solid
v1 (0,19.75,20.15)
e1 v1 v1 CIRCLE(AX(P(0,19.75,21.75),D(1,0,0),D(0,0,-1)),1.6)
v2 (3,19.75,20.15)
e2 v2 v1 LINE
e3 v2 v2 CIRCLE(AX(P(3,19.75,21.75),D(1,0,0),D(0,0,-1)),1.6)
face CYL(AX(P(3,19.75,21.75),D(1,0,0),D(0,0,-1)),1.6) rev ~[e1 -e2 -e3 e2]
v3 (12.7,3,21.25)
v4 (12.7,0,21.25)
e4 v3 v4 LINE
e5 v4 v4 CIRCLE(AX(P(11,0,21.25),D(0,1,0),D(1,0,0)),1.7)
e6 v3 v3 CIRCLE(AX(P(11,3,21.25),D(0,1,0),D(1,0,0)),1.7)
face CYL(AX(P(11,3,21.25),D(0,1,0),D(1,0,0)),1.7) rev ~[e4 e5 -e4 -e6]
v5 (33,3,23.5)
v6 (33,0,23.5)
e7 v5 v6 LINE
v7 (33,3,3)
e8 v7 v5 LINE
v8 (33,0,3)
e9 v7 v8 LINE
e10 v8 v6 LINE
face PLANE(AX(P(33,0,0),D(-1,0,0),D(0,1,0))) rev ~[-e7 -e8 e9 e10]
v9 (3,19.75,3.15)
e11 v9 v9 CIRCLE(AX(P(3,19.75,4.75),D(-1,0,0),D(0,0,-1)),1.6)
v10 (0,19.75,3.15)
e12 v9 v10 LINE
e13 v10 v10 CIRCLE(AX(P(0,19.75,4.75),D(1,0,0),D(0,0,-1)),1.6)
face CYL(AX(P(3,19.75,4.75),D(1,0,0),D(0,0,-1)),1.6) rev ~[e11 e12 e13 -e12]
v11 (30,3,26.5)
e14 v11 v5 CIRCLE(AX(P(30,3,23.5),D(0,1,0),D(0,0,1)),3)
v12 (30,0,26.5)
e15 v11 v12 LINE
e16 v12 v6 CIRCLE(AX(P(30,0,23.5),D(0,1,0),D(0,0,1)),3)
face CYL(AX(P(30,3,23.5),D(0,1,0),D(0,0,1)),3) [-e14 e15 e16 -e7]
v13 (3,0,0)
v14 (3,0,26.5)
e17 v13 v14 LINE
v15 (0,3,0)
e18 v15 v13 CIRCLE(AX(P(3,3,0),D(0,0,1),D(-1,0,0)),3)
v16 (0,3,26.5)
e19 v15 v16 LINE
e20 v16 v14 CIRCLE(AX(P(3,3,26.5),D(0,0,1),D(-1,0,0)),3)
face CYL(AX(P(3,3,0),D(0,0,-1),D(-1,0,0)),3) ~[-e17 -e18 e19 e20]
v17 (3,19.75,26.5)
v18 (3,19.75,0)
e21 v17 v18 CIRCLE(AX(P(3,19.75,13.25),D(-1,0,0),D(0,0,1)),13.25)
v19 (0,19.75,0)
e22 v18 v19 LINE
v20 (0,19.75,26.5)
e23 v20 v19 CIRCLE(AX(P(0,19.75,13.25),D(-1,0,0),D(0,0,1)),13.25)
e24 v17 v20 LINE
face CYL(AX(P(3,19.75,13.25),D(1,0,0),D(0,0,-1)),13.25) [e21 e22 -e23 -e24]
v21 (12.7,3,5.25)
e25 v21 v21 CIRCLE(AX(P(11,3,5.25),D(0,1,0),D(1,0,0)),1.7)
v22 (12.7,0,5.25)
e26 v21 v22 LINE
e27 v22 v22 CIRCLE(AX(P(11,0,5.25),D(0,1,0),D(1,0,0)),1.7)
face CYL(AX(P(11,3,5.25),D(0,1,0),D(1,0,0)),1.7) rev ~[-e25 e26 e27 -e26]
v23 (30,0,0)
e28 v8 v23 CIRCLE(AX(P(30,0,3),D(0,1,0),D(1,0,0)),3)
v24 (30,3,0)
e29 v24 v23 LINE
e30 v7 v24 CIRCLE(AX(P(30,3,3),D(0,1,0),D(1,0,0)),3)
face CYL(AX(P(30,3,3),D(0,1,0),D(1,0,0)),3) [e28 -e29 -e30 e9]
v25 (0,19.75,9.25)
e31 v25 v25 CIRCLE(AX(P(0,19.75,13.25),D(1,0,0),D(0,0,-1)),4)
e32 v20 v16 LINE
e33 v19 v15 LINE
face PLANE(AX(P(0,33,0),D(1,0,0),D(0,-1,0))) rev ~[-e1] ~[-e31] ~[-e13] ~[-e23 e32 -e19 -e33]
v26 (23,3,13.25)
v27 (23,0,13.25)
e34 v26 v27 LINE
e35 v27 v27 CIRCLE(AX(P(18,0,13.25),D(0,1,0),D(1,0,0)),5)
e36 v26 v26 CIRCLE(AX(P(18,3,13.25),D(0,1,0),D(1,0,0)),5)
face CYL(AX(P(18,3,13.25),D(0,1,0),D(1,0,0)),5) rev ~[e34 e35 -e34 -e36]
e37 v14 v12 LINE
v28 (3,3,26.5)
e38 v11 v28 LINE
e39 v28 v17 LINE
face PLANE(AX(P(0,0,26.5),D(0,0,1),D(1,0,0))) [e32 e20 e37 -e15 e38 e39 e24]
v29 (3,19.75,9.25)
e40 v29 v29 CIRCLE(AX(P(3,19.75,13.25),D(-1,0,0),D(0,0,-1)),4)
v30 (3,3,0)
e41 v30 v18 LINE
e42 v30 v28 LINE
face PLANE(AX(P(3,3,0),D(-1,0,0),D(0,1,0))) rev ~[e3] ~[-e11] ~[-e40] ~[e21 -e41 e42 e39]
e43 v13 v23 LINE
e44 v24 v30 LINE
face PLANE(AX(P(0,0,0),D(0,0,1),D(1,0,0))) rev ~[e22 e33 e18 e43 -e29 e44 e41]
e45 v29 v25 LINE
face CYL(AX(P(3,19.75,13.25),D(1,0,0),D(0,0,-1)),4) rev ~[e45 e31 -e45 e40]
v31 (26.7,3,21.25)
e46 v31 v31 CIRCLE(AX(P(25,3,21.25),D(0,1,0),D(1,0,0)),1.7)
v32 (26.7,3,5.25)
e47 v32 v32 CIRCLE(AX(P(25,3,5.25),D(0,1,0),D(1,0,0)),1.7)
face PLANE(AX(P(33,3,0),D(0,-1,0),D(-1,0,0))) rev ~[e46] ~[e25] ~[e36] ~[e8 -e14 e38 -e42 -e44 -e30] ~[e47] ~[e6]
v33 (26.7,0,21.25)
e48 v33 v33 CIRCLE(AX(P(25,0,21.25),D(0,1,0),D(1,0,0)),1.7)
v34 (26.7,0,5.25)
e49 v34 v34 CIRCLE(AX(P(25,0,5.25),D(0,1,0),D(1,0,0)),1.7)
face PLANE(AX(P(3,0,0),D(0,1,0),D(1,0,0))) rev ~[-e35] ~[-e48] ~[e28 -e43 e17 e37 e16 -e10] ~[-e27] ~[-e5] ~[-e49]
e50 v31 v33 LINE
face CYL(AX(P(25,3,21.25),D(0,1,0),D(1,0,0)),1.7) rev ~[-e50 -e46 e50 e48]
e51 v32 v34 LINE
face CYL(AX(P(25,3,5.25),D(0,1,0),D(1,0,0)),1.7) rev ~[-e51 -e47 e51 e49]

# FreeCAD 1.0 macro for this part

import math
import FreeCAD as App
import Part
import Sketcher
from FreeCAD import Vector
Q = App.Units.Quantity

doc = App.newDocument("Part")
body = doc.addObject("PartDesign::Body", "Body")

# Sketch on XY plane
sketch1 = body.newObject("Sketcher::SketchObject", "Sketch")
sketch1.AttachmentSupport = (doc.getObject("XY_Plane"), [""])
sketch1.MapMode = "FlatFace"
sketch1.addGeometry(Part.ArcOfCircle(Part.Circle(Vector(3, 3, 0), Vector(0, 0, 1), 3), math.radians(180), math.radians(270)), False)
sketch1.addGeometry(Part.LineSegment(Vector(3, 0, 0), Vector(33, 0, 0)), False)
sketch1.addGeometry(Part.LineSegment(Vector(33, 0, 0), Vector(33, 3, 0)), False)
sketch1.addGeometry(Part.LineSegment(Vector(33, 3, 0), Vector(3, 3, 0)), False)
sketch1.addGeometry(Part.LineSegment(Vector(3, 3, 0), Vector(3, 33, 0)), False)
sketch1.addGeometry(Part.LineSegment(Vector(3, 33, 0), Vector(0, 33, 0)), False)
sketch1.addGeometry(Part.LineSegment(Vector(0, 33, 0), Vector(0, 3, 0)), False)
sketch1.addConstraint(Sketcher.Constraint("Tangent", 0, 2, 1, 1))
sketch1.addConstraint(Sketcher.Constraint("Coincident", 1, 2, 2, 1))
sketch1.addConstraint(Sketcher.Constraint("Coincident", 2, 2, 3, 1))
sketch1.addConstraint(Sketcher.Constraint("Coincident", 3, 2, 4, 1))
sketch1.addConstraint(Sketcher.Constraint("Coincident", 4, 2, 5, 1))
sketch1.addConstraint(Sketcher.Constraint("Coincident", 5, 2, 6, 1))
sketch1.addConstraint(Sketcher.Constraint("Tangent", 6, 2, 0, 1))
sketch1.addConstraint(Sketcher.Constraint("Horizontal", 1))
sketch1.addConstraint(Sketcher.Constraint("Vertical", 2))
sketch1.addConstraint(Sketcher.Constraint("Horizontal", 3))
sketch1.addConstraint(Sketcher.Constraint("Vertical", 4))
sketch1.addConstraint(Sketcher.Constraint("Horizontal", 5))
sketch1.addConstraint(Sketcher.Constraint("Vertical", 6))
sketch1.addConstraint(Sketcher.Constraint("Coincident", 3, 2, 0, 3))
sketch1.addConstraint(Sketcher.Constraint("PointOnObject", 0, 2, -1))
sketch1.addConstraint(Sketcher.Constraint("PointOnObject", 5, 2, -2))
sketch1.addConstraint(Sketcher.Constraint("Equal", 3, 4))
sketch1.addConstraint(Sketcher.Constraint("Radius", 0, Q("3 mm")))
sketch1.addConstraint(Sketcher.Constraint("DistanceX", 1, 1, 1, 2, Q("30 mm")))
pad1 = body.newObject("PartDesign::Pad", "Pad")
pad1.Profile = sketch1
pad1.Length = 26.5

# Sketch on YZ plane
sketch2 = body.newObject("Sketcher::SketchObject", "Sketch001")
sketch2.AttachmentSupport = (doc.getObject("YZ_Plane"), [""])
sketch2.MapMode = "FlatFace"
sketch2.AttachmentOffset = App.Placement(Vector(0, 0, 3), App.Rotation())
sketch2.addGeometry(Part.LineSegment(Vector(19.75, 0, 0), Vector(33, 0, 0)), False)
sketch2.addGeometry(Part.LineSegment(Vector(33, 0, 0), Vector(33, 13.25, 0)), False)
sketch2.addGeometry(Part.ArcOfCircle(Part.Circle(Vector(19.75, 13.25, 0), Vector(0, 0, 1), 13.25), math.radians(-90), math.radians(0)), False)
sketch2.addGeometry(Part.ArcOfCircle(Part.Circle(Vector(19.75, 13.25, 0), Vector(0, 0, 1), 13.25), math.radians(0), math.radians(90)), False)
sketch2.addGeometry(Part.LineSegment(Vector(33, 13.25, 0), Vector(33, 26.5, 0)), False)
sketch2.addGeometry(Part.LineSegment(Vector(33, 26.5, 0), Vector(19.75, 26.5, 0)), False)
sketch2.addGeometry(Part.Circle(Vector(19.75, 13.25, 0), Vector(0, 0, 1), 4), False)
sketch2.addGeometry(Part.Circle(Vector(19.75, 21.75, 0), Vector(0, 0, 1), 1.6), False)
sketch2.addGeometry(Part.Circle(Vector(19.75, 4.75, 0), Vector(0, 0, 1), 1.6), False)
sketch2.addConstraint(Sketcher.Constraint("Coincident", 0, 2, 1, 1))
sketch2.addConstraint(Sketcher.Constraint("Tangent", 1, 2, 2, 2))
sketch2.addConstraint(Sketcher.Constraint("Tangent", 2, 1, 0, 1))
sketch2.addConstraint(Sketcher.Constraint("Tangent", 3, 1, 4, 1))
sketch2.addConstraint(Sketcher.Constraint("Coincident", 4, 2, 5, 1))
sketch2.addConstraint(Sketcher.Constraint("Tangent", 5, 2, 3, 2))
sketch2.addConstraint(Sketcher.Constraint("Horizontal", 0))
sketch2.addConstraint(Sketcher.Constraint("Vertical", 1))
sketch2.addConstraint(Sketcher.Constraint("Vertical", 4))
sketch2.addConstraint(Sketcher.Constraint("Horizontal", 5))
sketch2.addConstraint(Sketcher.Constraint("Coincident", 3, 3, 2, 3))
sketch2.addConstraint(Sketcher.Constraint("Coincident", 6, 3, 2, 3))
sketch2.addConstraint(Sketcher.Constraint("Equal", 2, 3))
sketch2.addConstraint(Sketcher.Constraint("Equal", 7, 8))
sketch2.addConstraint(Sketcher.Constraint("PointOnObject", 0, 2, -1))
sketch2.addConstraint(Sketcher.Constraint("Vertical", 6, 3, 7, 3))
sketch2.addConstraint(Sketcher.Constraint("Vertical", 7, 3, 8, 3))
sketch2.addConstraint(Sketcher.Constraint("Diameter", 7, Q("3.2 mm")))
sketch2.addConstraint(Sketcher.Constraint("Diameter", 6, Q("8 mm")))
sketch2.addConstraint(Sketcher.Constraint("Radius", 2, Q("13.25 mm")))
sketch2.addConstraint(Sketcher.Constraint("DistanceX", -1, 1, 0, 2, Q("33 mm")))
sketch2.addConstraint(Sketcher.Constraint("DistanceY", 8, 3, 7, 3, Q("17 mm")))
sketch2.addConstraint(Sketcher.Constraint("DistanceY", 2, 3, 7, 3, Q("8.5 mm")))
pocket1 = body.newObject("PartDesign::Pocket", "Pocket")
pocket1.Profile = sketch2
pocket1.Length = 3

# Sketch on XZ plane
sketch3 = body.newObject("Sketcher::SketchObject", "Sketch002")
sketch3.AttachmentSupport = (doc.getObject("XZ_Plane"), [""])
sketch3.MapMode = "FlatFace"
sketch3.AttachmentOffset = App.Placement(Vector(0, 0, -3), App.Rotation())
sketch3.addGeometry(Part.LineSegment(Vector(33, 26.5, 0), Vector(33, 23.5, 0)), False)
sketch3.addGeometry(Part.ArcOfCircle(Part.Circle(Vector(30, 23.5, 0), Vector(0, 0, 1), 3), math.radians(0), math.radians(90)), False)
sketch3.addGeometry(Part.LineSegment(Vector(30, 26.5, 0), Vector(33, 26.5, 0)), False)
sketch3.addGeometry(Part.LineSegment(Vector(33, 3, 0), Vector(33, 0, 0)), False)
sketch3.addGeometry(Part.LineSegment(Vector(33, 0, 0), Vector(30, 0, 0)), False)
sketch3.addGeometry(Part.ArcOfCircle(Part.Circle(Vector(30, 3, 0), Vector(0, 0, 1), 3), math.radians(-90), math.radians(0)), False)
sketch3.addGeometry(Part.Circle(Vector(18, 13.25, 0), Vector(0, 0, 1), 5), False)
sketch3.addGeometry(Part.Circle(Vector(25, 5.25, 0), Vector(0, 0, 1), 1.7), False)
sketch3.addGeometry(Part.Circle(Vector(11, 5.25, 0), Vector(0, 0, 1), 1.7), False)
sketch3.addGeometry(Part.Circle(Vector(25, 21.25, 0), Vector(0, 0, 1), 1.7), False)
sketch3.addGeometry(Part.Circle(Vector(11, 21.25, 0), Vector(0, 0, 1), 1.7), False)
sketch3.addConstraint(Sketcher.Constraint("Tangent", 0, 2, 1, 1))
sketch3.addConstraint(Sketcher.Constraint("Tangent", 1, 2, 2, 1))
sketch3.addConstraint(Sketcher.Constraint("Coincident", 2, 2, 0, 1))
sketch3.addConstraint(Sketcher.Constraint("Coincident", 3, 2, 4, 1))
sketch3.addConstraint(Sketcher.Constraint("Tangent", 4, 2, 5, 1))
sketch3.addConstraint(Sketcher.Constraint("Tangent", 5, 2, 3, 1))
sketch3.addConstraint(Sketcher.Constraint("Vertical", 0))
sketch3.addConstraint(Sketcher.Constraint("Horizontal", 2))
sketch3.addConstraint(Sketcher.Constraint("Vertical", 3))
sketch3.addConstraint(Sketcher.Constraint("Horizontal", 4))
sketch3.addConstraint(Sketcher.Constraint("Equal", 1, 5))
sketch3.addConstraint(Sketcher.Constraint("Equal", 7, 8))
sketch3.addConstraint(Sketcher.Constraint("Equal", 8, 9))
sketch3.addConstraint(Sketcher.Constraint("Equal", 9, 10))
sketch3.addConstraint(Sketcher.Constraint("PointOnObject", 3, 2, -1))
sketch3.addConstraint(Sketcher.Constraint("Horizontal", 7, 3, 8, 3))
sketch3.addConstraint(Sketcher.Constraint("Horizontal", 9, 3, 10, 3))
sketch3.addConstraint(Sketcher.Constraint("Vertical", 1, 3, 5, 3))
sketch3.addConstraint(Sketcher.Constraint("Vertical", 7, 3, 9, 3))
sketch3.addConstraint(Sketcher.Constraint("Vertical", 8, 3, 10, 3))
sketch3.addConstraint(Sketcher.Constraint("Diameter", 6, Q("10 mm")))
sketch3.addConstraint(Sketcher.Constraint("Radius", 1, Q("3 mm")))
sketch3.addConstraint(Sketcher.Constraint("Diameter", 7, Q("3.4 mm")))
sketch3.addConstraint(Sketcher.Constraint("DistanceX", -1, 1, 1, 3, Q("30 mm")))
sketch3.addConstraint(Sketcher.Constraint("DistanceX", -1, 1, 6, 3, Q("18 mm")))
sketch3.addConstraint(Sketcher.Constraint("DistanceX", -1, 1, 7, 3, Q("25 mm")))
sketch3.addConstraint(Sketcher.Constraint("DistanceX", -1, 1, 8, 3, Q("11 mm")))
sketch3.addConstraint(Sketcher.Constraint("DistanceY", 7, 3, 6, 3, Q("8 mm")))
sketch3.addConstraint(Sketcher.Constraint("DistanceY", 6, 3, 9, 3, Q("8 mm")))
sketch3.addConstraint(Sketcher.Constraint("DistanceY", -1, 1, 1, 3, Q("23.5 mm")))
sketch3.addConstraint(Sketcher.Constraint("DistanceY", -1, 1, 6, 3, Q("13.25 mm")))
pocket2 = body.newObject("PartDesign::Pocket", "Pocket001")
pocket2.Profile = sketch3
pocket2.Length = 3
pocket2.Reversed = True

doc.recompute()
